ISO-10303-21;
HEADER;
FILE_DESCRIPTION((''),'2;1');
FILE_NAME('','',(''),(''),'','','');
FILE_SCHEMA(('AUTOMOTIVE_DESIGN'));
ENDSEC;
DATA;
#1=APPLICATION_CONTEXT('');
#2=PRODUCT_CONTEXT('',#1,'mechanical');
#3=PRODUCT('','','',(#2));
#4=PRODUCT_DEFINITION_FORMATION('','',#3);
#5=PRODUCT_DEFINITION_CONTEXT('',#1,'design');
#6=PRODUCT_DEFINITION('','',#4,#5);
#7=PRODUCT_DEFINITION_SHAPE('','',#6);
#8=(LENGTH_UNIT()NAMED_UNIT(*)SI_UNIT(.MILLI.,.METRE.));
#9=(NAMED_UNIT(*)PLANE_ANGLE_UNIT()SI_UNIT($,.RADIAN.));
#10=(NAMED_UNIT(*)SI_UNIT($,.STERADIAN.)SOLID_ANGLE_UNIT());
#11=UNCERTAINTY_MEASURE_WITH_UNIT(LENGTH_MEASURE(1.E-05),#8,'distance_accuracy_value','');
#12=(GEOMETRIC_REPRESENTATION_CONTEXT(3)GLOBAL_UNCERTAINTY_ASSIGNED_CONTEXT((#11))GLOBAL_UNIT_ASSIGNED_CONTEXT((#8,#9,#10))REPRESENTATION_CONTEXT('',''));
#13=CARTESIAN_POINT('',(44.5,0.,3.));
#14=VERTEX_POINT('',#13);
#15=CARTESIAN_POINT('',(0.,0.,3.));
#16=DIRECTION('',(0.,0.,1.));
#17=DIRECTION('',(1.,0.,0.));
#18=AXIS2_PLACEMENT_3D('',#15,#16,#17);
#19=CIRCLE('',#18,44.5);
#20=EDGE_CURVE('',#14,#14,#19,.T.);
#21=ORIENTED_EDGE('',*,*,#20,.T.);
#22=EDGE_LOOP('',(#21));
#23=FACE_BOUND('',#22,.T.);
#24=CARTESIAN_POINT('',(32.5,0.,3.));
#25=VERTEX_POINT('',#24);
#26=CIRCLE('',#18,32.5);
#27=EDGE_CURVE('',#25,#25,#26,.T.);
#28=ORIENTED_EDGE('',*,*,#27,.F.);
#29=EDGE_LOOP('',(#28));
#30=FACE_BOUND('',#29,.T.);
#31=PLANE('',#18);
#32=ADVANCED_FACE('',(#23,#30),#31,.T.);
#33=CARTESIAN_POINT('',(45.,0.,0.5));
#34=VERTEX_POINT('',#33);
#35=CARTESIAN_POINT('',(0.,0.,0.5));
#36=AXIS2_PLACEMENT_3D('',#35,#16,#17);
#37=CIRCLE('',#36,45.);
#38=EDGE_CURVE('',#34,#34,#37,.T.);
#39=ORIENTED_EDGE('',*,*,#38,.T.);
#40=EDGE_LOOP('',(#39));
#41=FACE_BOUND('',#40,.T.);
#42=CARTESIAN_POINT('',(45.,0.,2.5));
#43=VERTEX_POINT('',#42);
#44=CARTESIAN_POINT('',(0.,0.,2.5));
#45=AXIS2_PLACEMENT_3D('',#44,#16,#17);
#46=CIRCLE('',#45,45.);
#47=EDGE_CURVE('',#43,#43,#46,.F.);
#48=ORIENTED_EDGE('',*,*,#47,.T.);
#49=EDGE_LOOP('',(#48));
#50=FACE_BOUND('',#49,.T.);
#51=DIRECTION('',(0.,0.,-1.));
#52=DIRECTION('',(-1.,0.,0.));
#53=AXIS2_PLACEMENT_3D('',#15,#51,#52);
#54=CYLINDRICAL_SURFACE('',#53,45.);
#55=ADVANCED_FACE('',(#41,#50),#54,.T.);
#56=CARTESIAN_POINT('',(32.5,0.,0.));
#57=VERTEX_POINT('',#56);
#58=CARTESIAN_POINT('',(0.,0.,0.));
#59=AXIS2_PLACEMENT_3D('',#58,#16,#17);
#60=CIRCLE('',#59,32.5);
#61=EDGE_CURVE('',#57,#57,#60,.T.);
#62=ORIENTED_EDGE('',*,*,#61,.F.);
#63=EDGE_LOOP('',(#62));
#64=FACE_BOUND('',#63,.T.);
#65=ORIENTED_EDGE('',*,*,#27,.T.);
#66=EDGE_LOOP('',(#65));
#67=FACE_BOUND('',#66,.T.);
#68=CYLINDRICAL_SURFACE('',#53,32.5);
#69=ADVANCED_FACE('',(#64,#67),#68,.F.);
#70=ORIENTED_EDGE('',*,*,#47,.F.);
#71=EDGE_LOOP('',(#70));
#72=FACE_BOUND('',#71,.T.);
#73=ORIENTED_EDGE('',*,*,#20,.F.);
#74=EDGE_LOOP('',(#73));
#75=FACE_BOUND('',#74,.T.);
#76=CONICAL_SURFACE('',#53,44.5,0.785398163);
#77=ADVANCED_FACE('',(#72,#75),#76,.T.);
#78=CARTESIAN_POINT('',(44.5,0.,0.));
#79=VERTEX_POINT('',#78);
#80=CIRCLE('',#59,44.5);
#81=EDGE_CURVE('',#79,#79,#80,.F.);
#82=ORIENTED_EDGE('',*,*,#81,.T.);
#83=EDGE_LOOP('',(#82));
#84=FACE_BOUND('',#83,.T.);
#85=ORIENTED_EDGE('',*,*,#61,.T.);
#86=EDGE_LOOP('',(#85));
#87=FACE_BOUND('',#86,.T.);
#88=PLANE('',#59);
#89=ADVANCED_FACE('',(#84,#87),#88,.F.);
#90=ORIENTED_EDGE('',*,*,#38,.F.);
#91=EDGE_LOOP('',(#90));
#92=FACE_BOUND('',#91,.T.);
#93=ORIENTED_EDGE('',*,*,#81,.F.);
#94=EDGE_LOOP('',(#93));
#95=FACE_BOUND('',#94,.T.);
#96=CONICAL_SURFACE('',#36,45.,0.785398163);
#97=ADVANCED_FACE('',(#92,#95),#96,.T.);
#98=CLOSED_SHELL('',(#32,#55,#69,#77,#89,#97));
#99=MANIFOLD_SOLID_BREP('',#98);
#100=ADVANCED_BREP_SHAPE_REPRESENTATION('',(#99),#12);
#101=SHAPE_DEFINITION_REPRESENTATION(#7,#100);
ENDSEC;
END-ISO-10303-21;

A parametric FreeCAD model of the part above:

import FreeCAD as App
import Part
import Sketcher
Q = App.Units.Quantity


def edges_at(feature, points):
    """Names of the edges that pass closest to the given points."""
    edges = feature.Shape.Edges
    near = lambda p: min(range(len(edges)), key=lambda i: edges[i].distToShape(Part.Vertex(*p))[0])
    return sorted({f"Edge{near(p) + 1}" for p in points})

doc = App.newDocument("Part")
body = doc.addObject("PartDesign::Body", "Body")

# Sketch on XY plane
sketch1 = body.newObject("Sketcher::SketchObject", "Sketch")
sketch1.AttachmentSupport = (doc.getObject("XY_Plane"), [""])
sketch1.MapMode = "FlatFace"
sketch1.addGeometry(Part.Circle(App.Vector(0, 0, 0), App.Vector(0, 0, 1), 45), False)
sketch1.addGeometry(Part.Circle(App.Vector(0, 0, 0), App.Vector(0, 0, 1), 32), False)
sketch1.addConstraint(Sketcher.Constraint("Coincident", 0, 3, -1, 1))
sketch1.addConstraint(Sketcher.Constraint("Coincident", 1, 3, -1, 1))
sketch1.addConstraint(Sketcher.Constraint("Diameter", 0, Q("90 mm")))
sketch1.addConstraint(Sketcher.Constraint("Diameter", 1, Q("65 mm")))
pad1 = body.newObject("PartDesign::Pad", "Pad")
pad1.Profile = sketch1
pad1.Length = 3
doc.recompute()

chamfer = body.newObject("PartDesign::Chamfer", "Chamfer")
chamfer.Base = (pad1, edges_at(pad1, [(-45, 0, 0), (-45, 0, 3)]))
chamfer.Size = 0.5

doc.recompute()
